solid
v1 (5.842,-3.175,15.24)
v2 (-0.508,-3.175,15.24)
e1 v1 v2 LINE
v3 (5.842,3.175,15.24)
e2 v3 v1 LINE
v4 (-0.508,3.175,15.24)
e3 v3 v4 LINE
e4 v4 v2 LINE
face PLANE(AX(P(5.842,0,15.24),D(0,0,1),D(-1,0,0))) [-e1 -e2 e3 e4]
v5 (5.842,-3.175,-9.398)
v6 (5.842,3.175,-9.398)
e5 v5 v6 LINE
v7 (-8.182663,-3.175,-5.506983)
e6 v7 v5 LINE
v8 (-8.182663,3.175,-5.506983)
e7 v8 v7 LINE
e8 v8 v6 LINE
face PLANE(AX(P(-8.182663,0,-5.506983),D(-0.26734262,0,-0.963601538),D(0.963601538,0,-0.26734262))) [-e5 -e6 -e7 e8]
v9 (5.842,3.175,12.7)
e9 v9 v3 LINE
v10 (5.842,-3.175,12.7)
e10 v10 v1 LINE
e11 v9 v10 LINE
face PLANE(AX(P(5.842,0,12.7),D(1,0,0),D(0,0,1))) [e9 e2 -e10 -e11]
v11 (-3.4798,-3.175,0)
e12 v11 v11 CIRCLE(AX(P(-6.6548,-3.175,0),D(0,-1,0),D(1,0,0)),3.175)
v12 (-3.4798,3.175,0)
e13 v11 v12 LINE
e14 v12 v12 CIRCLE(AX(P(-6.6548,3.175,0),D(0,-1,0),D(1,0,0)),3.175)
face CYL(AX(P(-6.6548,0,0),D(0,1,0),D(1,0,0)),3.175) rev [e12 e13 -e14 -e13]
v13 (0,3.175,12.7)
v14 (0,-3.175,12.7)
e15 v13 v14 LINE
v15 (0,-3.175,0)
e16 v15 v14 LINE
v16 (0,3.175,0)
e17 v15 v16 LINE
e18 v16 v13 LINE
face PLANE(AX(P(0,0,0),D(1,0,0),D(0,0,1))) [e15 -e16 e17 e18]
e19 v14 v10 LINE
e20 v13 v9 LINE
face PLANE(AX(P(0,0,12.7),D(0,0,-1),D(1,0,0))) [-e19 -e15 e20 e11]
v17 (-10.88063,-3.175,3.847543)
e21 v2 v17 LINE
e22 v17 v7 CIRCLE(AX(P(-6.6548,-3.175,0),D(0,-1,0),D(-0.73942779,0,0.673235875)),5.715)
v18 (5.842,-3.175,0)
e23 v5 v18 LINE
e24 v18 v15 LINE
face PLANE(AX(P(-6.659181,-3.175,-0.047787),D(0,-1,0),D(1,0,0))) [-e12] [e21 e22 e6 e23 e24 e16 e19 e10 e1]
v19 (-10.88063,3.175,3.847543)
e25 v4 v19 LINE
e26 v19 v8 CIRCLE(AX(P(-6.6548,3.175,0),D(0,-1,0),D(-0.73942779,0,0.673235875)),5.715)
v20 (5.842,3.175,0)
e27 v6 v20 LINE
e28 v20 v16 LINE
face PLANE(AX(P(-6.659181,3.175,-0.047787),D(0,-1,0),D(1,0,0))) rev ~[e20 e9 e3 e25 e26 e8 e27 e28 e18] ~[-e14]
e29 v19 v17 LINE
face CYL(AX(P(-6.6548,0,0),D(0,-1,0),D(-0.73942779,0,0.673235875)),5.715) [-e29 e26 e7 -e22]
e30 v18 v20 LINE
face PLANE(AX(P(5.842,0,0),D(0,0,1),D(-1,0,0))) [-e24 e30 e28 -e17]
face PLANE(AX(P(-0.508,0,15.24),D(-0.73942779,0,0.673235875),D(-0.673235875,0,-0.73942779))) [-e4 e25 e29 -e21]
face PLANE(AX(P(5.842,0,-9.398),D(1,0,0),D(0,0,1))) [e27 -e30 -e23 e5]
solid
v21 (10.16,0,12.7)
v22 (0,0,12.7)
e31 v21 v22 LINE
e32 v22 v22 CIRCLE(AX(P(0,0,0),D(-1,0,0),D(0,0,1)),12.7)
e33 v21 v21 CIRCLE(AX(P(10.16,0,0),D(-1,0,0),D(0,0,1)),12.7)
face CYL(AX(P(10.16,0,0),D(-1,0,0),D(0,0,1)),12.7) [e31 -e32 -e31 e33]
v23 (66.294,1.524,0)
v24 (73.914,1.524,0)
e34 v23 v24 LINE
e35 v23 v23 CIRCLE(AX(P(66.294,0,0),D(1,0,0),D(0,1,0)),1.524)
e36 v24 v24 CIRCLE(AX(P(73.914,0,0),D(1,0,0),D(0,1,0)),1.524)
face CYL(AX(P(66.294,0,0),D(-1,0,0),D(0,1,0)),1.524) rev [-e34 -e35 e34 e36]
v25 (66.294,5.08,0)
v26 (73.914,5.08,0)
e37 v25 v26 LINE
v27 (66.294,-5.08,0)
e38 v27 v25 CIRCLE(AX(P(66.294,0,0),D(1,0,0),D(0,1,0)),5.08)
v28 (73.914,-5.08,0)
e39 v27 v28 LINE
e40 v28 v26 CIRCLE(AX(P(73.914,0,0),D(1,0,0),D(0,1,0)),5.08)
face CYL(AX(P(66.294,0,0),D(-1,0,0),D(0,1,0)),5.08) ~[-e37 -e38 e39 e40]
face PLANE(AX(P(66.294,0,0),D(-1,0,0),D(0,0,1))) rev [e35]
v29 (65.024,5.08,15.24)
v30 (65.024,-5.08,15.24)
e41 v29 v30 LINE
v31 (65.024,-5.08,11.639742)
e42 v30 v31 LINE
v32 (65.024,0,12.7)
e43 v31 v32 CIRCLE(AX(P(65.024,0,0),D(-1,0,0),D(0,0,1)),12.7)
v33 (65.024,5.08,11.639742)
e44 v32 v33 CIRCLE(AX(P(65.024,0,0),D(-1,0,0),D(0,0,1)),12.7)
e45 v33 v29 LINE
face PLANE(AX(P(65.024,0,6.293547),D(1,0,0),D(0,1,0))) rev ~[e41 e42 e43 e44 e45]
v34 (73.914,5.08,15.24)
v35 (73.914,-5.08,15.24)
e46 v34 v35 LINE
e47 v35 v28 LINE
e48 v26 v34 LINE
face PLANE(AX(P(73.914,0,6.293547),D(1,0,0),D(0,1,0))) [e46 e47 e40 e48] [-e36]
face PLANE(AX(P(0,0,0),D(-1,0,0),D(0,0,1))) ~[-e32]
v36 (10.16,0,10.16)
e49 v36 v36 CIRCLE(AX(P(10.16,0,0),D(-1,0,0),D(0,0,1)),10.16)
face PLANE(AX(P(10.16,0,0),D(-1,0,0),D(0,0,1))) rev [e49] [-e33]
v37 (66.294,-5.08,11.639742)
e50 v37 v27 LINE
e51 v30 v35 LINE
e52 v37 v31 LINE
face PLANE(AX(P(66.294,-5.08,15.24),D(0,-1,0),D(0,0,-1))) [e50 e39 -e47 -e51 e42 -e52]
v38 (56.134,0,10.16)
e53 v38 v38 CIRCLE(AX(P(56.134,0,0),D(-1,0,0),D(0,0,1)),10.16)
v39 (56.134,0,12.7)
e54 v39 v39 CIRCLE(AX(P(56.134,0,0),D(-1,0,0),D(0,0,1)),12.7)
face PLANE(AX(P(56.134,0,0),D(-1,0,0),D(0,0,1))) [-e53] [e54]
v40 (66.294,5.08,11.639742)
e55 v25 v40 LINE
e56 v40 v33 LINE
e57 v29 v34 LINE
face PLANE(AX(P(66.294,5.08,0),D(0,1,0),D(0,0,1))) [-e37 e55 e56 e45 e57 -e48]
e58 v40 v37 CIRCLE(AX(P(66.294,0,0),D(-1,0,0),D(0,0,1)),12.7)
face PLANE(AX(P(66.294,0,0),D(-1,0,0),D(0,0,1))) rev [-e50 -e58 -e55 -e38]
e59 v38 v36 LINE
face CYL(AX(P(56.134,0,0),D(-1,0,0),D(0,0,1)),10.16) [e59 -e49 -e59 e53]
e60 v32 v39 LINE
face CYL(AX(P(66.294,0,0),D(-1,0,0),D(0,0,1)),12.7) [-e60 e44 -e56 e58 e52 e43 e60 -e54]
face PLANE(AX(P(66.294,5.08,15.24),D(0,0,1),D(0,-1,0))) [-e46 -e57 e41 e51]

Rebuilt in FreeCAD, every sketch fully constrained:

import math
import FreeCAD as App
import Part
import Sketcher
Q = App.Units.Quantity

doc = App.newDocument("Part")
body = doc.addObject("PartDesign::Body", "Body")

# Sketch on XZ plane
sketch1 = body.newObject("Sketcher::SketchObject", "Sketch")
sketch1.AttachmentSupport = (doc.getObject("XZ_Plane"), [""])
sketch1.MapMode = "FlatFace"
sketch1.addGeometry([
    Part.LineSegment(App.Vector(0, 12.7, 0), App.Vector(0, 0, 0)),  # 0
    Part.LineSegment(App.Vector(0, 0, 0), App.Vector(66.3, 0, 0)),  # 1
    Part.LineSegment(App.Vector(66.3, 0, 0), App.Vector(66.3, 12.7, 0)),  # 2
    Part.LineSegment(App.Vector(66.3, 12.7, 0), App.Vector(56.1, 12.7, 0)),  # 3
    Part.LineSegment(App.Vector(56.1, 12.7, 0), App.Vector(56.1, 10.2, 0)),  # 4
    Part.LineSegment(App.Vector(56.1, 10.2, 0), App.Vector(10.2, 10.2, 0)),  # 5
    Part.LineSegment(App.Vector(10.2, 10.2, 0), App.Vector(10.2, 12.7, 0)),  # 6
    Part.LineSegment(App.Vector(10.2, 12.7, 0), App.Vector(0, 12.7, 0)),  # 7
], False)
sketch1.addConstraint([
    Sketcher.Constraint("Coincident", 0, 2, 1, 1),
    Sketcher.Constraint("Coincident", 1, 2, 2, 1),
    Sketcher.Constraint("Coincident", 2, 2, 3, 1),
    Sketcher.Constraint("Coincident", 3, 2, 4, 1),
    Sketcher.Constraint("Coincident", 4, 2, 5, 1),
    Sketcher.Constraint("Coincident", 5, 2, 6, 1),
    Sketcher.Constraint("Coincident", 6, 2, 7, 1),
    Sketcher.Constraint("Coincident", 7, 2, 0, 1),
    Sketcher.Constraint("Vertical", 0),
    Sketcher.Constraint("Horizontal", 1),
    Sketcher.Constraint("Vertical", 2),
    Sketcher.Constraint("Horizontal", 3),
    Sketcher.Constraint("Vertical", 4),
    Sketcher.Constraint("Horizontal", 5),
    Sketcher.Constraint("Vertical", 6),
    Sketcher.Constraint("Horizontal", 7),
    Sketcher.Constraint("Coincident", 0, 2, -1, 1),
    Sketcher.Constraint("Horizontal", 3, 2, 6, 2),
    Sketcher.Constraint("Equal", 3, 7),
    Sketcher.Constraint("DistanceX", 3, 2, 3, 1, Q("0.4 in")),
    Sketcher.Constraint("DistanceY", 0, 2, 0, 1, Q("0.5 in")),
    Sketcher.Constraint("DistanceY", 4, 2, 4, 1, Q("0.1 in")),
    Sketcher.Constraint("DistanceX", 1, 1, 1, 2, Q("2.61 in")),
])
revolution = body.newObject("PartDesign::Revolution", "Revolution")
revolution.Profile = sketch1
revolution.ReferenceAxis = (sketch1, ["H_Axis"])
revolution.Angle = 360

# Sketch on YZ plane
sketch2 = body.newObject("Sketcher::SketchObject", "Sketch001")
sketch2.AttachmentSupport = (doc.getObject("YZ_Plane"), [""])
sketch2.MapMode = "FlatFace"
sketch2.AttachmentOffset = App.Placement(App.Vector(0, 0, 2.61 * 25.4), App.Rotation())
sketch2.addGeometry([
    Part.LineSegment(App.Vector(5.1, 0, 0), App.Vector(5.1, 15.2, 0)),  # 0
    Part.LineSegment(App.Vector(5.1, 15.2, 0), App.Vector(-5.1, 15.2, 0)),  # 1
    Part.LineSegment(App.Vector(-5.1, 15.2, 0), App.Vector(-5.1, 0, 0)),  # 2
    Part.ArcOfCircle(Part.Circle(App.Vector(0, 0, 0), App.Vector(0, 0, 1), 5.1), math.radians(180), math.radians(360)),  # 3
    Part.Circle(App.Vector(0, 0, 0), App.Vector(0, 0, 1), 1.5),  # 4
], False)
sketch2.addConstraint([
    Sketcher.Constraint("Coincident", 0, 2, 1, 1),
    Sketcher.Constraint("Coincident", 1, 2, 2, 1),
    Sketcher.Constraint("Tangent", 2, 2, 3, 1),
    Sketcher.Constraint("Tangent", 3, 2, 0, 1),
    Sketcher.Constraint("Vertical", 0),
    Sketcher.Constraint("Horizontal", 1),
    Sketcher.Constraint("Vertical", 2),
    Sketcher.Constraint("Coincident", 3, 3, -1, 1),
    Sketcher.Constraint("Coincident", 4, 3, -1, 1),
    Sketcher.Constraint("Radius", 3, Q("0.2 in")),
    Sketcher.Constraint("Diameter", 4, Q("0.12 in")),
    Sketcher.Constraint("DistanceY", 0, 1, 0, 2, Q("0.6 in")),
])
pad1 = body.newObject("PartDesign::Pad", "Pad")
pad1.Profile = sketch2
pad1.Type = "TwoLengths"
pad1.Length = Q("0.3 in")
pad1.Length2 = Q("0.05 in")
body2 = doc.addObject("PartDesign::Body", "Body001")

# Sketch on XZ plane
sketch3 = body2.newObject("Sketcher::SketchObject", "Sketch002")
sketch3.AttachmentSupport = (doc.getObject("XZ_Plane001"), [""])
sketch3.MapMode = "FlatFace"
sketch3.addGeometry([
    Part.LineSegment(App.Vector(0, 0, 0), App.Vector(0, 12.7, 0)),  # 0
    Part.LineSegment(App.Vector(0, 12.7, 0), App.Vector(5.8, 12.7, 0)),  # 1
    Part.LineSegment(App.Vector(5.8, 12.7, 0), App.Vector(5.8, 15.2, 0)),  # 2
    Part.LineSegment(App.Vector(5.8, 15.2, 0), App.Vector(-0.5, 15.2, 0)),  # 3
    Part.LineSegment(App.Vector(-0.5, 15.2, 0), App.Vector(-10.9, 3.8, 0)),  # 4
    Part.ArcOfCircle(Part.Circle(App.Vector(-6.7, 0, 0), App.Vector(0, 0, 1), 5.7), math.radians(138), math.radians(254)),  # 5
    Part.LineSegment(App.Vector(-8.2, -5.5, 0), App.Vector(5.8, -9.4, 0)),  # 6
    Part.LineSegment(App.Vector(5.8, -9.4, 0), App.Vector(5.8, 0, 0)),  # 7
    Part.LineSegment(App.Vector(5.8, 0, 0), App.Vector(0, 0, 0)),  # 8
    Part.Circle(App.Vector(-6.7, 0, 0), App.Vector(0, 0, 1), 3.2),  # 9
], False)
sketch3.addConstraint([
    Sketcher.Constraint("Coincident", 0, 2, 1, 1),
    Sketcher.Constraint("Coincident", 1, 2, 2, 1),
    Sketcher.Constraint("Coincident", 2, 2, 3, 1),
    Sketcher.Constraint("Coincident", 3, 2, 4, 1),
    Sketcher.Constraint("Tangent", 4, 2, 5, 1),
    Sketcher.Constraint("Tangent", 5, 2, 6, 1),
    Sketcher.Constraint("Coincident", 6, 2, 7, 1),
    Sketcher.Constraint("Coincident", 7, 2, 8, 1),
    Sketcher.Constraint("Coincident", 8, 2, 0, 1),
    Sketcher.Constraint("Vertical", 0),
    Sketcher.Constraint("Horizontal", 1),
    Sketcher.Constraint("Vertical", 2),
    Sketcher.Constraint("Horizontal", 3),
    Sketcher.Constraint("Vertical", 7),
    Sketcher.Constraint("Horizontal", 8),
    Sketcher.Constraint("Coincident", 8, 2, -1, 1),
    Sketcher.Constraint("Coincident", 9, 3, 5, 3),
    Sketcher.Constraint("PointOnObject", 5, 3, -1),
    Sketcher.Constraint("Vertical", 2, 2, 6, 2),
    Sketcher.Constraint("Diameter", 9, Q("0.25 in")),
    Sketcher.Constraint("DistanceY", 0, 1, 0, 2, Q("0.5 in")),
    Sketcher.Constraint("DistanceY", 2, 1, 2, 2, Q("0.1 in")),
    Sketcher.Constraint("Radius", 5, Q("0.225 in")),
    Sketcher.Constraint("DistanceX", 1, 1, 1, 2, Q("0.23 in")),
    Sketcher.Constraint("DistanceX", 3, 2, 3, 1, Q("0.25 in")),
    Sketcher.Constraint("DistanceY", 7, 1, 7, 2, Q("0.37 in")),
    Sketcher.Constraint("DistanceX", 5, 3, -1, 1, Q("0.262 in")),
])
pad2 = body2.newObject("PartDesign::Pad", "Pad001")
pad2.Profile = sketch3
pad2.Length = Q("0.25 in")
pad2.Midplane = True

doc.recompute()
